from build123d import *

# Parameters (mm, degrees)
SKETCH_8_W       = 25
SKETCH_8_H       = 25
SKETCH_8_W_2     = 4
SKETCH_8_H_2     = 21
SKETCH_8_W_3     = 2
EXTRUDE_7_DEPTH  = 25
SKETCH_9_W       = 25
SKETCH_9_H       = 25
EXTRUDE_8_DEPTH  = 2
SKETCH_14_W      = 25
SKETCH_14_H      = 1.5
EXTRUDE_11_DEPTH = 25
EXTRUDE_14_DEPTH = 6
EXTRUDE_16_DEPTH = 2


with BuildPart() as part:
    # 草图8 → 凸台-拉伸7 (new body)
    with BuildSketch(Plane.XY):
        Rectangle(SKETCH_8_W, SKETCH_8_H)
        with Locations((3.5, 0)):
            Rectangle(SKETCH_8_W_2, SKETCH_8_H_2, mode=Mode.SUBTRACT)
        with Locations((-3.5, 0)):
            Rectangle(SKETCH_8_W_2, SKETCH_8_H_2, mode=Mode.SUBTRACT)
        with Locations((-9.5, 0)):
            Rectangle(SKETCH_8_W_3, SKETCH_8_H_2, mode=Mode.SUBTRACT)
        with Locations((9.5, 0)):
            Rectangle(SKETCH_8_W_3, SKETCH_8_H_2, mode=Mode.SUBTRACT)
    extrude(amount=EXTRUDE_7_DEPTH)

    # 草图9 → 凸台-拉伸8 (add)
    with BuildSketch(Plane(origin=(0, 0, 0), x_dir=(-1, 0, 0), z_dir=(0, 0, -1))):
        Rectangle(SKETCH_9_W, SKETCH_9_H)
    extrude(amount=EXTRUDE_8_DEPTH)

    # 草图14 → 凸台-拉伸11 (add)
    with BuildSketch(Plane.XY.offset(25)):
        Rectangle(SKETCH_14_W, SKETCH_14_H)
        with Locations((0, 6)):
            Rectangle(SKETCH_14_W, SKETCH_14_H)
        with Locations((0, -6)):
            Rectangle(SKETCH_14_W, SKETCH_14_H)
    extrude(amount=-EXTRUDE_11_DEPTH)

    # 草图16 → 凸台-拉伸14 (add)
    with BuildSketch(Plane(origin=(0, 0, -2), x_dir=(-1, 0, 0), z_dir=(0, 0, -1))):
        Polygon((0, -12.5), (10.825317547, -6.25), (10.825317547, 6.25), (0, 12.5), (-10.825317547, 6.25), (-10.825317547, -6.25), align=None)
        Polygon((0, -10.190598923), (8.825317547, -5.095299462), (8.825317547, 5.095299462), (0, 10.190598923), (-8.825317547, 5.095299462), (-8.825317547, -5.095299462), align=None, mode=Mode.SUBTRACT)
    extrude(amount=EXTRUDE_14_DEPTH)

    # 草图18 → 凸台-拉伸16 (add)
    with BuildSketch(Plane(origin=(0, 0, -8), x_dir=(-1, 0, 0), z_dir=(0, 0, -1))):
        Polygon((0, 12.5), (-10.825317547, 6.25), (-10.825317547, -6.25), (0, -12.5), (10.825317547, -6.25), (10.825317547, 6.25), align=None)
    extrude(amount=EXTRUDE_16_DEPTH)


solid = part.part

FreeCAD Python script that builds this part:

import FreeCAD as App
import Part
import Sketcher
from FreeCAD import Vector
Q = App.Units.Quantity


def add_polygon(sketch, points):
    """Adds a closed chain of lines whose ends are joined by coincident constraints."""
    first, n = sketch.GeometryCount, len(points)
    for a, b in zip(points, points[1:] + points[:1]):
        sketch.addGeometry(Part.LineSegment(App.Vector(*a, 0), App.Vector(*b, 0)), False)
    for i in range(n):
        sketch.addConstraint(Sketcher.Constraint("Coincident", first + i, 2, first + (i + 1) % n, 1))

doc = App.newDocument("Part")
params = doc.addObject("Spreadsheet::Sheet", "Params")
for row, (alias, value) in enumerate([
    ("sketch1_width", "25 mm"),
    ("sketch1_width2", "2 mm"),
    ("sketch1_width3", "4 mm"),
    ("sketch1_height", "21 mm"),
    ("pad1_length", "25 mm"),
    ("sketch2_width", "25 mm"),
    ("pad2_length", "2 mm"),
    ("sketch3_width", "25 mm"),
    ("sketch3_height", "1.5 mm"),
    ("pad3_length", "25 mm"),
    ("sketch4_height", "12.5 mm"),
    ("pad4_length", "6 mm"),
    ("sketch5_height", "12.5 mm"),
    ("pad5_length", "2 mm"),
], start=1):
    params.set(f"A{row}", alias)
    params.set(f"B{row}", "=" + value)
    params.setAlias(f"B{row}", alias)

body = doc.addObject("PartDesign::Body", "Body")

# Sketch on XY plane
sketch1 = body.newObject("Sketcher::SketchObject", "Sketch")
sketch1.AttachmentSupport = (doc.getObject("XY_Plane"), [""])
sketch1.MapMode = "FlatFace"
add_polygon(sketch1, [(-12.5, 12.5), (-12.5, -12.5), (12.5, -12.5), (12.5, 12.5)])  # lines 0-3
add_polygon(sketch1, [(-8.5, -10.5), (-10.5, -10.5), (-10.5, 10.5), (-8.5, 10.5)])  # lines 4-7
add_polygon(sketch1, [(-1.5, -10.5), (-5.5, -10.5), (-5.5, 10.5), (-1.5, 10.5)])  # lines 8-11
add_polygon(sketch1, [(5.5, -10.5), (1.5, -10.5), (1.5, 10.5), (5.5, 10.5)])  # lines 12-15
add_polygon(sketch1, [(10.5, -10.5), (8.5, -10.5), (8.5, 10.5), (10.5, 10.5)])  # lines 16-19
sketch1.addConstraint([
    Sketcher.Constraint("Vertical", 0),
    Sketcher.Constraint("Horizontal", 1),
    Sketcher.Constraint("Vertical", 2),
    Sketcher.Constraint("Horizontal", 3),
    Sketcher.Constraint("Horizontal", 4),
    Sketcher.Constraint("Vertical", 5),
    Sketcher.Constraint("Horizontal", 6),
    Sketcher.Constraint("Vertical", 7),
    Sketcher.Constraint("Horizontal", 8),
    Sketcher.Constraint("Vertical", 9),
    Sketcher.Constraint("Horizontal", 10),
    Sketcher.Constraint("Vertical", 11),
    Sketcher.Constraint("Horizontal", 12),
    Sketcher.Constraint("Vertical", 13),
    Sketcher.Constraint("Horizontal", 14),
    Sketcher.Constraint("Vertical", 15),
    Sketcher.Constraint("Horizontal", 16),
    Sketcher.Constraint("Vertical", 17),
    Sketcher.Constraint("Horizontal", 18),
    Sketcher.Constraint("Vertical", 19),
    Sketcher.Constraint("Symmetric", 0, 2, 2, 2, -1, 1),
    Sketcher.Constraint("Symmetric", 10, 2, 12, 2, -1, 1),
    Sketcher.Constraint("Symmetric", 8, 2, 14, 2, -1, 1),
    Sketcher.Constraint("Symmetric", 6, 2, 16, 2, -1, 1),
    Sketcher.Constraint("Symmetric", 4, 2, 18, 2, -1, 1),
    Sketcher.Constraint("Horizontal", 7, 2, 8, 2),
    Sketcher.Constraint("Horizontal", 6, 2, 9, 2),
    Sketcher.Constraint("Horizontal", 11, 2, 12, 2),
    Sketcher.Constraint("Equal", 3, 0),
    Sketcher.Constraint("DistanceX", 1, 1, 1, 2, 25.0),
    Sketcher.Constraint("DistanceX", 4, 2, 4, 1, 2.0),
    Sketcher.Constraint("DistanceX", 8, 2, 8, 1, 4.0),
    Sketcher.Constraint("DistanceY", 5, 1, 5, 2, 21.0),
    Sketcher.Constraint("DistanceX", 0, 2, 4, 2, 2.0),
    Sketcher.Constraint("DistanceX", 7, 2, 8, 2, 3.0),
])
sketch1.setExpression("Constraints[49]", "Params.sketch1_width")
sketch1.setExpression("Constraints[50]", "Params.sketch1_width2")
sketch1.setExpression("Constraints[51]", "Params.sketch1_width3")
sketch1.setExpression("Constraints[52]", "Params.sketch1_height")
pad1 = body.newObject("PartDesign::Pad", "Pad")
pad1.Profile = sketch1
pad1.setExpression("Length", "Params.pad1_length")

# Sketch on XY plane
sketch2 = body.newObject("Sketcher::SketchObject", "Sketch001")
sketch2.AttachmentSupport = (doc.getObject("XY_Plane"), [""])
sketch2.MapMode = "FlatFace"
add_polygon(sketch2, [(12, 12), (12, -12), (-12, -12), (-12, 12)])  # lines 0-3
sketch2.addConstraint([
    Sketcher.Constraint("Vertical", 0),
    Sketcher.Constraint("Horizontal", 1),
    Sketcher.Constraint("Vertical", 2),
    Sketcher.Constraint("Horizontal", 3),
    Sketcher.Constraint("Symmetric", 0, 2, 2, 2, -1, 1),
    Sketcher.Constraint("Equal", 3, 0),
    Sketcher.Constraint("DistanceX", 1, 2, 1, 1, 25.0),
])
sketch2.setExpression("Constraints[10]", "Params.sketch2_width")
pad2 = body.newObject("PartDesign::Pad", "Pad001")
pad2.Profile = sketch2
pad2.setExpression("Length", "Params.pad2_length")
pad2.Reversed = True

# Sketch on XY plane
sketch3 = body.newObject("Sketcher::SketchObject", "Sketch002")
sketch3.AttachmentSupport = (doc.getObject("XY_Plane"), [""])
sketch3.MapMode = "FlatFace"
sketch3.AttachmentOffset = App.Placement(Vector(0, 0, 25), App.Rotation())
add_polygon(sketch3, [(-12.5, 0.8), (-12.5, -0.8), (12.5, -0.8), (12.5, 0.8)])  # lines 0-3
add_polygon(sketch3, [(-12.5, 6.8), (-12.5, 5.2), (12.5, 5.2), (12.5, 6.8)])  # lines 4-7
add_polygon(sketch3, [(-12.5, -5.2), (-12.5, -6.8), (12.5, -6.8), (12.5, -5.2)])  # lines 8-11
sketch3.addConstraint([
    Sketcher.Constraint("Vertical", 0),
    Sketcher.Constraint("Horizontal", 1),
    Sketcher.Constraint("Vertical", 2),
    Sketcher.Constraint("Horizontal", 3),
    Sketcher.Constraint("Vertical", 4),
    Sketcher.Constraint("Horizontal", 5),
    Sketcher.Constraint("Vertical", 6),
    Sketcher.Constraint("Horizontal", 7),
    Sketcher.Constraint("Vertical", 8),
    Sketcher.Constraint("Horizontal", 9),
    Sketcher.Constraint("Vertical", 10),
    Sketcher.Constraint("Horizontal", 11),
    Sketcher.Constraint("Symmetric", 0, 2, 2, 2, -1, 1),
    Sketcher.Constraint("Symmetric", 6, 2, 8, 2, -1, 1),
    Sketcher.Constraint("Symmetric", 4, 2, 10, 2, -1, 1),
    Sketcher.Constraint("Vertical", 3, 2, 4, 2),
    Sketcher.Constraint("Vertical", 2, 2, 5, 2),
    Sketcher.Constraint("Equal", 2, 4),
    Sketcher.Constraint("DistanceX", 1, 1, 1, 2, 25.0),
    Sketcher.Constraint("DistanceY", 0, 2, 0, 1, 1.5),
    Sketcher.Constraint("DistanceY", 0, 2, 4, 2, 6.0),
])
sketch3.setExpression("Constraints[30]", "Params.sketch3_width")
sketch3.setExpression("Constraints[31]", "Params.sketch3_height")
pad3 = body.newObject("PartDesign::Pad", "Pad002")
pad3.Profile = sketch3
pad3.setExpression("Length", "Params.pad3_length")
pad3.Reversed = True

# Sketch on XY plane
sketch4 = body.newObject("Sketcher::SketchObject", "Sketch003")
sketch4.AttachmentSupport = (doc.getObject("XY_Plane"), [""])
sketch4.MapMode = "FlatFace"
sketch4.AttachmentOffset = App.Placement(Vector(0, 0, -2), App.Rotation())
add_polygon(sketch4, [(0, -12), (-11, -6), (-11, 6), (0, 12), (11, 6), (11, -6)])  # lines 0-5
add_polygon(sketch4, [(-9, -5), (0, -10), (9, -5), (9, 5), (0, 10), (-9, 5)])  # lines 6-11
sketch4.addConstraint([
    Sketcher.Constraint("Vertical", 1),
    Sketcher.Constraint("Vertical", 4),
    Sketcher.Constraint("Vertical", 8),
    Sketcher.Constraint("Vertical", 11),
    Sketcher.Constraint("Symmetric", 0, 2, 3, 2, -1, 1),
    Sketcher.Constraint("Symmetric", 2, 2, 5, 2, -1, 1),
    Sketcher.Constraint("Symmetric", 6, 2, 9, 2, -1, 1),
    Sketcher.Constraint("Symmetric", 7, 2, 10, 2, -1, 1),
    Sketcher.Constraint("PointOnObject", 2, 2, -2),
    Sketcher.Constraint("PointOnObject", 6, 2, -2),
    Sketcher.Constraint("Parallel", 2, 5),
    Sketcher.Constraint("Parallel", 3, 6),
    Sketcher.Constraint("Parallel", 5, 7),
    Sketcher.Constraint("Parallel", 6, 9),
    Sketcher.Constraint("Horizontal", 1, 2, 3, 2),
    Sketcher.Constraint("Angle", 0, Q("150 deg")),
    Sketcher.Constraint("DistanceY", 1, 1, 1, 2, 12.5),
    Sketcher.Constraint("DistanceY", 5, 2, 2, 2, 25.0),
    Sketcher.Constraint("DistanceX", 7, 2, 4, 2, 2.0),
    Sketcher.Constraint("DistanceY", 8, 1, 8, 2, 10.190599),
])
sketch4.setExpression("Constraints[28]", "Params.sketch4_height")
pad4 = body.newObject("PartDesign::Pad", "Pad003")
pad4.Profile = sketch4
pad4.setExpression("Length", "Params.pad4_length")
pad4.Reversed = True

# Sketch on XY plane
sketch5 = body.newObject("Sketcher::SketchObject", "Sketch004")
sketch5.AttachmentSupport = (doc.getObject("XY_Plane"), [""])
sketch5.MapMode = "FlatFace"
sketch5.AttachmentOffset = App.Placement(Vector(0, 0, -8), App.Rotation())
add_polygon(sketch5, [(0, 12), (11, 6), (11, -6), (0, -12), (-11, -6), (-11, 6)])  # lines 0-5
sketch5.addConstraint([
    Sketcher.Constraint("Vertical", 1),
    Sketcher.Constraint("Vertical", 4),
    Sketcher.Constraint("Symmetric", 0, 2, 3, 2, -1, 1),
    Sketcher.Constraint("Symmetric", 2, 2, 5, 2, -1, 1),
    Sketcher.Constraint("PointOnObject", 2, 2, -2),
    Sketcher.Constraint("Parallel", 2, 5),
    Sketcher.Constraint("Horizontal", 1, 2, 3, 2),
    Sketcher.Constraint("Angle", 0, Q("-30 deg")),
    Sketcher.Constraint("DistanceY", 1, 2, 1, 1, 12.5),
    Sketcher.Constraint("DistanceY", 2, 2, 5, 2, 25.0),
])
sketch5.setExpression("Constraints[14]", "Params.sketch5_height")
pad5 = body.newObject("PartDesign::Pad", "Pad004")
pad5.Profile = sketch5
pad5.setExpression("Length", "Params.pad5_length")
pad5.Reversed = True

doc.recompute()
